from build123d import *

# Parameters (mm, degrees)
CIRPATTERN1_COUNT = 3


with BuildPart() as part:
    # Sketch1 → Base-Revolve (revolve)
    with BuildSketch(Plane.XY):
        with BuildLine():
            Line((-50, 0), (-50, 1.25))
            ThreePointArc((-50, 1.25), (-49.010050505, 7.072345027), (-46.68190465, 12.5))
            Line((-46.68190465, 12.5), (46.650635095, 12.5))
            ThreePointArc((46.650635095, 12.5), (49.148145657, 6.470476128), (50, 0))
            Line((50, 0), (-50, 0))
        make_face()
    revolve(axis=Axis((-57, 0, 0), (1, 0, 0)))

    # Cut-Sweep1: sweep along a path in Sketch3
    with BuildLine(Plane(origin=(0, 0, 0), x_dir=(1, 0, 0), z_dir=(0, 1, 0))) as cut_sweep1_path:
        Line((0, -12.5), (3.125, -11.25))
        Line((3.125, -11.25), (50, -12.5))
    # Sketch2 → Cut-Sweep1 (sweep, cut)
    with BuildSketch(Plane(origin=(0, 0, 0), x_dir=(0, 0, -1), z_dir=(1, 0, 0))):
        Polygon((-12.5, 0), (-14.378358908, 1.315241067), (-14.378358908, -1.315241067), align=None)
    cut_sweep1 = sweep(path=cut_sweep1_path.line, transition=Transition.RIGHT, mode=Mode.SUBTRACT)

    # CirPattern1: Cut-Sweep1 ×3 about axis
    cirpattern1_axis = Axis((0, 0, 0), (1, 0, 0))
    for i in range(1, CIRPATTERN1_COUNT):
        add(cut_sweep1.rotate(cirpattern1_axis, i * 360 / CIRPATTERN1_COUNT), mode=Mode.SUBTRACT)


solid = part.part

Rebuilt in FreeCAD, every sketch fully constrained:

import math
import FreeCAD as App
import Part
import Sketcher
Q = App.Units.Quantity

doc = App.newDocument("Part")
body = doc.addObject("PartDesign::Body", "Body")

# Sketch on XY plane
sketch1 = body.newObject("Sketcher::SketchObject", "Sketch")
sketch1.AttachmentSupport = (doc.getObject("XY_Plane"), [""])
sketch1.MapMode = "FlatFace"
sketch1.addGeometry([
    Part.LineSegment(App.Vector(-50, 1.2, 0), App.Vector(-50, 0, 0)),  # 0
    Part.LineSegment(App.Vector(-50, 0, 0), App.Vector(50, 0, 0)),  # 1
    Part.ArcOfCircle(Part.Circle(App.Vector(25, 0, 0), App.Vector(0, 0, 1), 25), math.radians(0), math.radians(30)),  # 2
    Part.LineSegment(App.Vector(46.7, 12.5, 0), App.Vector(-46.7, 12.5, 0)),  # 3
    Part.ArcOfCircle(Part.Circle(App.Vector(-25, 0, 0), App.Vector(0, 0, 1), 25), math.radians(150), math.radians(177)),  # 4
], False)
sketch1.addConstraint([
    Sketcher.Constraint("Coincident", 0, 2, 1, 1),
    Sketcher.Constraint("Coincident", 1, 2, 2, 1),
    Sketcher.Constraint("Coincident", 2, 2, 3, 1),
    Sketcher.Constraint("Coincident", 3, 2, 4, 1),
    Sketcher.Constraint("Coincident", 4, 2, 0, 1),
    Sketcher.Constraint("Vertical", 0),
    Sketcher.Constraint("Horizontal", 1),
    Sketcher.Constraint("Horizontal", 3),
    Sketcher.Constraint("Equal", 2, 4),
    Sketcher.Constraint("Symmetric", 0, 2, 1, 2, -1, 1),
    Sketcher.Constraint("PointOnObject", 2, 3, -1),
    Sketcher.Constraint("PointOnObject", 4, 3, -1),
    Sketcher.Constraint("Radius", 2, Q("25 mm")),
    Sketcher.Constraint("DistanceX", 1, 1, 1, 2, Q("100 mm")),
    Sketcher.Constraint("DistanceY", 0, 2, 0, 1, Q("1.25 mm")),
    Sketcher.Constraint("DistanceY", -1, 1, 2, 2, Q("12.5 mm")),
])
revolution = body.newObject("PartDesign::Revolution", "Revolution")
revolution.Profile = sketch1
revolution.ReferenceAxis = (sketch1, ["H_Axis"])
revolution.Angle = 360

# Sketch on YZ plane
sketch2 = body.newObject("Sketcher::SketchObject", "Sketch001")
sketch2.AttachmentSupport = (doc.getObject("YZ_Plane"), [""])
sketch2.MapMode = "FlatFace"
sketch2.addGeometry([
    Part.LineSegment(App.Vector(0, 12.5, 0), App.Vector(1.3, 14.4, 0)),
    Part.LineSegment(App.Vector(1.3, 14.4, 0), App.Vector(-1.3, 14.4, 0)),
    Part.LineSegment(App.Vector(-1.3, 14.4, 0), App.Vector(0, 12.5, 0)),
], False)
sketch2.addConstraint([
    Sketcher.Constraint("Coincident", 0, 2, 1, 1),
    Sketcher.Constraint("Coincident", 1, 2, 2, 1),
    Sketcher.Constraint("Coincident", 2, 2, 0, 1),
    Sketcher.Constraint("Horizontal", 1),
    Sketcher.Constraint("PointOnObject", 2, 2, -2),
    Sketcher.Constraint("Equal", 0, 2),
    Sketcher.Constraint("Angle", 0, Q("55 deg")),
    Sketcher.Constraint("DistanceY", -1, 1, 2, 2, Q("12.5 mm")),
    Sketcher.Constraint("DistanceX", 1, 2, 1, 1, Q("2.630482 mm")),
])

# Sketch on XZ plane
sketch3 = body.newObject("Sketcher::SketchObject", "Sketch002")
sketch3.AttachmentSupport = (doc.getObject("XZ_Plane"), [""])
sketch3.MapMode = "FlatFace"
sketch3.addGeometry([
    Part.LineSegment(App.Vector(0, 12.5, 0), App.Vector(3.1, 11.2, 0)),
    Part.LineSegment(App.Vector(3.1, 11.2, 0), App.Vector(50, 12.5, 0)),
], False)
sketch3.addConstraint([
    Sketcher.Constraint("Coincident", 0, 2, 1, 1),
    Sketcher.Constraint("PointOnObject", 0, 1, -2),
    Sketcher.Constraint("Horizontal", 0, 1, 1, 2),
    Sketcher.Constraint("DistanceX", -1, 1, 1, 2, Q("50 mm")),
    Sketcher.Constraint("DistanceY", -1, 1, 0, 1, Q("12.5 mm")),
    Sketcher.Constraint("DistanceY", -1, 1, 0, 2, Q("11.25 mm")),
    Sketcher.Constraint("DistanceX", -1, 1, 0, 2, Q("3.125 mm")),
])
doc.recompute()

subtractivepipe = body.newObject("PartDesign::SubtractivePipe", "SubtractivePipe")
subtractivepipe.Profile = sketch2
subtractivepipe.Spine = (sketch3, ["Edge1", "Edge2"])
subtractivepipe.Transition = "Right corner"
doc.recompute()

polarpattern = body.newObject("PartDesign::PolarPattern", "PolarPattern")
polarpattern.Originals = [subtractivepipe]
polarpattern.Axis = (doc.getObject("X_Axis"), [""])
polarpattern.Angle = 360
polarpattern.Occurrences = 3
body.Tip = polarpattern

doc.recompute()
